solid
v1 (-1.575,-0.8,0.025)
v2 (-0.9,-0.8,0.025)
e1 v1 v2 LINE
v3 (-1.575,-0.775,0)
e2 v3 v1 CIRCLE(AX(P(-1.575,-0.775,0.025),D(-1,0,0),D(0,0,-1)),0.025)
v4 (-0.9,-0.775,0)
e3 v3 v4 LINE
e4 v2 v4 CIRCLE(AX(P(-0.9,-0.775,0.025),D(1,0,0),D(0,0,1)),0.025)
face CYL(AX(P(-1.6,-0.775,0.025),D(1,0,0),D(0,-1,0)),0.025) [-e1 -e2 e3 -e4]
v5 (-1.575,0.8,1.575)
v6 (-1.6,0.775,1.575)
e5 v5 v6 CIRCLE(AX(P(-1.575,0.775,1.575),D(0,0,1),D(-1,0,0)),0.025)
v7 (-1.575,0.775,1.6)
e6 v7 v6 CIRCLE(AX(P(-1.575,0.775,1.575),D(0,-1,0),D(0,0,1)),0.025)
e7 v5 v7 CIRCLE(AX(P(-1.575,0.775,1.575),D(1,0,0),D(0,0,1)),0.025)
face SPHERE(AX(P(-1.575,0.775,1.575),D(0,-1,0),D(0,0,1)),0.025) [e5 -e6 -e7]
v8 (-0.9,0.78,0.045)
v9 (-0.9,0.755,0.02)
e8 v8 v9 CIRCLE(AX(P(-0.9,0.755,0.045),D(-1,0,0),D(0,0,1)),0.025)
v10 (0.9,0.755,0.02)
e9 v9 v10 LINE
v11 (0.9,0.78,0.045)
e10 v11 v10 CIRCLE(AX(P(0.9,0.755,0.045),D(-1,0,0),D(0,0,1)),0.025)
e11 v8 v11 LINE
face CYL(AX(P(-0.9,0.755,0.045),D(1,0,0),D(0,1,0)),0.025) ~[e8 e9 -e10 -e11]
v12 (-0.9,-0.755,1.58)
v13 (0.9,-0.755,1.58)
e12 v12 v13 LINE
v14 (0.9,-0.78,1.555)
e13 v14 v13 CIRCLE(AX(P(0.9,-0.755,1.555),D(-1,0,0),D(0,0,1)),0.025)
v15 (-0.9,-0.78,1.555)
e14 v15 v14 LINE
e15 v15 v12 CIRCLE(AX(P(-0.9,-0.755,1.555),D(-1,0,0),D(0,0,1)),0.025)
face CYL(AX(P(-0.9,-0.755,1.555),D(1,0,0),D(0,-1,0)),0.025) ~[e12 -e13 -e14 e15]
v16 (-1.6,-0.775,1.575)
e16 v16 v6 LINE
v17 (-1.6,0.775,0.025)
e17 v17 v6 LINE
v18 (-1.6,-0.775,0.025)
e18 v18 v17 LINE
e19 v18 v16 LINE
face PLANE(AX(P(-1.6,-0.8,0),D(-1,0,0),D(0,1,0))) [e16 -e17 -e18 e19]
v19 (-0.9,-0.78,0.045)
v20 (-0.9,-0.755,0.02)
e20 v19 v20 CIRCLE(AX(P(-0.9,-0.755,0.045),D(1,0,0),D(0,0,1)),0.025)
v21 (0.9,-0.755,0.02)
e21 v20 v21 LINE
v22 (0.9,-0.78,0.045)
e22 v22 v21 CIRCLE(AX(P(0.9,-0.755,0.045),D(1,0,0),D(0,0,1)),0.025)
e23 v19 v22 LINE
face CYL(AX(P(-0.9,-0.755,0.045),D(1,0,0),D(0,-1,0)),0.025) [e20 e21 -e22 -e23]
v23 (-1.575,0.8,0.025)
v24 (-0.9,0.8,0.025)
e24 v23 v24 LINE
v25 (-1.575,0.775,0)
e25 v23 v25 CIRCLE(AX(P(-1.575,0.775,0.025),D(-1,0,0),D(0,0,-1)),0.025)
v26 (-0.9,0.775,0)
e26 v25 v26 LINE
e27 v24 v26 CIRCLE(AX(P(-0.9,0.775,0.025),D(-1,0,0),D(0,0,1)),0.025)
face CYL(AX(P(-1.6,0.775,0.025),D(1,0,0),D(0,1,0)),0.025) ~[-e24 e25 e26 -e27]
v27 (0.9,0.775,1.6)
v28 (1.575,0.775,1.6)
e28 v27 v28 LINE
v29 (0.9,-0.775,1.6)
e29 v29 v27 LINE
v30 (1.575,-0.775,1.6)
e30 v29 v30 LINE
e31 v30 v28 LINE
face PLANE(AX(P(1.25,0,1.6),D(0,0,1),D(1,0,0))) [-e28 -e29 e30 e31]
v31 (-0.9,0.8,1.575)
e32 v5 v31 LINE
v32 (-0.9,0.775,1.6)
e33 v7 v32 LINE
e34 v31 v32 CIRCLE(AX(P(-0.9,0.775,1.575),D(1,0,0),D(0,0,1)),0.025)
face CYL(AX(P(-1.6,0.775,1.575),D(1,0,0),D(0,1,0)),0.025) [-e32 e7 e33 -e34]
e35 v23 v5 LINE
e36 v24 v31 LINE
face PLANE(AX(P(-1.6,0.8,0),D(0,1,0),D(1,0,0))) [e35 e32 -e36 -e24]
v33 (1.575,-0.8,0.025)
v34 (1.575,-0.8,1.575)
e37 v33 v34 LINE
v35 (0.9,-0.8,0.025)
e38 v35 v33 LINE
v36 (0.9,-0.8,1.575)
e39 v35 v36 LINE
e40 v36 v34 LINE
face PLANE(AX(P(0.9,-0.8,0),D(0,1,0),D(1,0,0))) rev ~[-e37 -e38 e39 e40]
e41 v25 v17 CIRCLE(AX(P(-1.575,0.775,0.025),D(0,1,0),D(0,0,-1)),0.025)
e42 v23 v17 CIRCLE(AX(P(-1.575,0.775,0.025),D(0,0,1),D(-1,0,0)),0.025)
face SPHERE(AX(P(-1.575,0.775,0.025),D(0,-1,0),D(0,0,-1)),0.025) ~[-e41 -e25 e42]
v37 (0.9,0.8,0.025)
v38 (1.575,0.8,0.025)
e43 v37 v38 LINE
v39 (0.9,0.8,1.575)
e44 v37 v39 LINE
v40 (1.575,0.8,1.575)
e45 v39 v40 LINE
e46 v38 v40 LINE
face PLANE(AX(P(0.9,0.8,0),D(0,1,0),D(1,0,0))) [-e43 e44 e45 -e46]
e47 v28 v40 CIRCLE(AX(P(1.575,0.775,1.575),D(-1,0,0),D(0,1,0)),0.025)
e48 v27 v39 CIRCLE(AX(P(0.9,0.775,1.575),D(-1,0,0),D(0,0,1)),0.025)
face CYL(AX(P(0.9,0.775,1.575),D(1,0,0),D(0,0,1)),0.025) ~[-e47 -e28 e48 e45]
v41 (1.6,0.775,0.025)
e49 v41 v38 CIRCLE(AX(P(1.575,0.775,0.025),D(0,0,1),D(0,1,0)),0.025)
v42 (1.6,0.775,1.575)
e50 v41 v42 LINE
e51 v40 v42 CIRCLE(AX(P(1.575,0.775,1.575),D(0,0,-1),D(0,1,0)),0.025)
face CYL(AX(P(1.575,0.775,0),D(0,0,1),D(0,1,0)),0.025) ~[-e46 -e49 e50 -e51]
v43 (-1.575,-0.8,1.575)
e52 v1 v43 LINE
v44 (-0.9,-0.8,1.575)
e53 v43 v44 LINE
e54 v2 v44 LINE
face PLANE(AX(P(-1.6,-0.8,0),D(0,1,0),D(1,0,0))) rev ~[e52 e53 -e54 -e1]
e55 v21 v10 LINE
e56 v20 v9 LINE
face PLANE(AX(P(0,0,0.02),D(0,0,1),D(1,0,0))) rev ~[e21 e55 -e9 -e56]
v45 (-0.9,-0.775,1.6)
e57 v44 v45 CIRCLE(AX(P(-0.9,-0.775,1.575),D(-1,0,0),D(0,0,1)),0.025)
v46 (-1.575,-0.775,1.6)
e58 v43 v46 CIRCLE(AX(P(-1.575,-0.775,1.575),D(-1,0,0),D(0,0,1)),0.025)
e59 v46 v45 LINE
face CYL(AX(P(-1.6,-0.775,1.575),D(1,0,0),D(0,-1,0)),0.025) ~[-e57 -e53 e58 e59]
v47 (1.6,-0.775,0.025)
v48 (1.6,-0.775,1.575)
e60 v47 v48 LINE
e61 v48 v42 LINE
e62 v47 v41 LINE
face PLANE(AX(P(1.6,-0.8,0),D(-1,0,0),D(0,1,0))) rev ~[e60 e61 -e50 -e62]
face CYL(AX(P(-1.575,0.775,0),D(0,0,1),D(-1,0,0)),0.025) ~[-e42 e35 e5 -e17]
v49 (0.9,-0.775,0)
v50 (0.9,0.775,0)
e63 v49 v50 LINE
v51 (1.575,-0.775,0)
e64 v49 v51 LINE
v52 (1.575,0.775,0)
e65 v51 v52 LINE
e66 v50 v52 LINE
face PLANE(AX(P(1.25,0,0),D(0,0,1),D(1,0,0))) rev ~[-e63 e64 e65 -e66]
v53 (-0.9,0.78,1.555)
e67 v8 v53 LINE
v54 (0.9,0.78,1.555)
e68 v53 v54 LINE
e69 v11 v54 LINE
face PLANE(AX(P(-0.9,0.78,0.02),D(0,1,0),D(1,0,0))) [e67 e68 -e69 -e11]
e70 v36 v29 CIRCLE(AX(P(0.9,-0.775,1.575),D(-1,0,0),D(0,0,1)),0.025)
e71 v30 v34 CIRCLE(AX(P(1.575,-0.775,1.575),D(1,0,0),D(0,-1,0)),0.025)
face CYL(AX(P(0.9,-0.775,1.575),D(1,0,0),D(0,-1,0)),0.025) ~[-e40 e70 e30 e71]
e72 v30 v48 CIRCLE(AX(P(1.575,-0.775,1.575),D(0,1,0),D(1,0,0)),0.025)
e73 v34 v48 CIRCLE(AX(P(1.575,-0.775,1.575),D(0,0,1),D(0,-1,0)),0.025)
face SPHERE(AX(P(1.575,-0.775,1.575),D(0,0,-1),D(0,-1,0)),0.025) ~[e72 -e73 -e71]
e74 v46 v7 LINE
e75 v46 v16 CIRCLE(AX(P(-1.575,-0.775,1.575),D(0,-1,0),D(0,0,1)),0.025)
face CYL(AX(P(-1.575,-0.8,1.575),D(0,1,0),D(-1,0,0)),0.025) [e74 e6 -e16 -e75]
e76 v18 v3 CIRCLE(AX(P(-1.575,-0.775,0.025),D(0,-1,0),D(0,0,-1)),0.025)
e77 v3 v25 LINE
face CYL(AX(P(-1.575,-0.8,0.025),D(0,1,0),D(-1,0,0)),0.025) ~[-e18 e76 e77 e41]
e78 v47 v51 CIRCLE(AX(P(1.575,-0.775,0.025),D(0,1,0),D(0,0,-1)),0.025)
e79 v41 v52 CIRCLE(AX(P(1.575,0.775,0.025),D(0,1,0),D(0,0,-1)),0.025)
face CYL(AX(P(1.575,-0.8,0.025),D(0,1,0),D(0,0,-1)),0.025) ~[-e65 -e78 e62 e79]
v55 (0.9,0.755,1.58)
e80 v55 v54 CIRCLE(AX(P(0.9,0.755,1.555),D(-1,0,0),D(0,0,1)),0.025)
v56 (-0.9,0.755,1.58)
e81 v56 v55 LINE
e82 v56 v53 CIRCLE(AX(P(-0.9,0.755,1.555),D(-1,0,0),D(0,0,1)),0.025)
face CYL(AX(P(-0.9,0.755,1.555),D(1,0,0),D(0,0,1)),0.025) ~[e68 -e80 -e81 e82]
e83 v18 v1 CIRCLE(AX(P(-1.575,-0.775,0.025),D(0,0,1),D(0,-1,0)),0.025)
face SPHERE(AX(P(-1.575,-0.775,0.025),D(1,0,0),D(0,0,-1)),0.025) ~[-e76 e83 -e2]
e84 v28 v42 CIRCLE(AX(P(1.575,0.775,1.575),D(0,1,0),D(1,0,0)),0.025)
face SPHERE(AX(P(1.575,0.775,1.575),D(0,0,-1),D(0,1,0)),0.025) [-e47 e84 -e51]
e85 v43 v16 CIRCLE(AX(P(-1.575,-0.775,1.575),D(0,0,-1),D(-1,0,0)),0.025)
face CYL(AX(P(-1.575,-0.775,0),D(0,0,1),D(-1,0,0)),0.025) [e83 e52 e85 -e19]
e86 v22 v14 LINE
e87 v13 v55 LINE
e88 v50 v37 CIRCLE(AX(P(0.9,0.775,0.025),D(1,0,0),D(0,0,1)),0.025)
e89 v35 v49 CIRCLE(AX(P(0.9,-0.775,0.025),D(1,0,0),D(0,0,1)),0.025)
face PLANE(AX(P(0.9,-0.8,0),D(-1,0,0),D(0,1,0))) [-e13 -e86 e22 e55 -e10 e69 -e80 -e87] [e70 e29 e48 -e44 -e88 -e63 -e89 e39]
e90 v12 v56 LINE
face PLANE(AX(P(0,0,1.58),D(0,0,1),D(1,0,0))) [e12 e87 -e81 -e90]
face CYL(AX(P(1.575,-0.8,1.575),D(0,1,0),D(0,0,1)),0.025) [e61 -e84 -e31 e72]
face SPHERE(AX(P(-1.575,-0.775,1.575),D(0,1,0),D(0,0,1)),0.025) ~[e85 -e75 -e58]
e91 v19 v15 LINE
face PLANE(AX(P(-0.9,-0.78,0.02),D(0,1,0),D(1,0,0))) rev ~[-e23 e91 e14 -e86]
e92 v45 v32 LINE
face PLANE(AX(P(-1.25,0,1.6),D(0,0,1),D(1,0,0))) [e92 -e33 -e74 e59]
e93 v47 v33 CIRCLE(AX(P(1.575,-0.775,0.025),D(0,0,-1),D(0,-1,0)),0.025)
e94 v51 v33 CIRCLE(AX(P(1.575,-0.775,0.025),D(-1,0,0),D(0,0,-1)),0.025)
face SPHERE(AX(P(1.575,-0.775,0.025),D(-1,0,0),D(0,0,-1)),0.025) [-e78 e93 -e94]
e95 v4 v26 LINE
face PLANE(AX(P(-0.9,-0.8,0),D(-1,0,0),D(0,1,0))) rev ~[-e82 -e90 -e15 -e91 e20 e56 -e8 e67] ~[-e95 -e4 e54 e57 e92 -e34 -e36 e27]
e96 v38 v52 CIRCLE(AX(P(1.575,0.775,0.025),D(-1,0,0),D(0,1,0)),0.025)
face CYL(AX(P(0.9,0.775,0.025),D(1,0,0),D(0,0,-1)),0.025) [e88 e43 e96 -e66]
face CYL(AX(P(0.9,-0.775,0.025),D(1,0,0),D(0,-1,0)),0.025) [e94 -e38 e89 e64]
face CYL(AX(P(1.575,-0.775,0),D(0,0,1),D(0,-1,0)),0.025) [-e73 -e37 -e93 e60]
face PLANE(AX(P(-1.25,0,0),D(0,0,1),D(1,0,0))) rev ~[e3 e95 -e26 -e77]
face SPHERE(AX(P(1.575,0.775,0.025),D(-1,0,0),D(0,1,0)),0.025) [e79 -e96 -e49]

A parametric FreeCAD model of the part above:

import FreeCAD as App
import Part
import Sketcher
from FreeCAD import Vector
Q = App.Units.Quantity


def edges_at(feature, points):
    """Names of the edges that pass closest to the given points."""
    edges = feature.Shape.Edges
    near = lambda p: min(range(len(edges)), key=lambda i: edges[i].distToShape(Part.Vertex(*p))[0])
    return sorted({f"Edge{near(p) + 1}" for p in points})

doc = App.newDocument("Part")
body = doc.addObject("PartDesign::Body", "Body")

# Sketch on XY plane
sketch1 = doc.addObject("Sketcher::SketchObject", "Sketch")
body.addObject(sketch1)
sketch1.AttachmentSupport = (doc.XY_Plane, [""])
sketch1.MapMode = "FlatFace"
sketch1.addGeometry([
    Part.LineSegment(Vector(0.9, 0.8, 0), Vector(0.9, -0.8, 0)),
    Part.LineSegment(Vector(0.9, -0.8, 0), Vector(1.6, -0.8, 0)),
    Part.LineSegment(Vector(1.6, -0.8, 0), Vector(1.6, 0.8, 0)),
    Part.LineSegment(Vector(1.6, 0.8, 0), Vector(0.9, 0.8, 0)),
], False)
sketch1.addConstraint([
    Sketcher.Constraint("Coincident", 0, 2, 1, 1),
    Sketcher.Constraint("Coincident", 1, 2, 2, 1),
    Sketcher.Constraint("Coincident", 2, 2, 3, 1),
    Sketcher.Constraint("Coincident", 3, 2, 0, 1),
    Sketcher.Constraint("Vertical", 0),
    Sketcher.Constraint("Horizontal", 1),
    Sketcher.Constraint("Vertical", 2),
    Sketcher.Constraint("Horizontal", 3),
    Sketcher.Constraint("DistanceX", 1, 1, 1, 2, Q("0.7 mm")),
    Sketcher.Constraint("DistanceY", 0, 2, 0, 1, Q("1.6 mm")),
    Sketcher.Constraint("DistanceX", -1, 1, 0, 2, Q("0.9 mm")),
    Sketcher.Constraint("DistanceY", 0, 2, -1, 1, Q("0.8 mm")),
])
pad1 = doc.addObject("PartDesign::Pad", "Pad")
body.addObject(pad1)
pad1.Profile = sketch1
pad1.Length = 1.6
body2 = doc.addObject("PartDesign::Body", "Body001")

# Sketch on XY plane
sketch2 = doc.addObject("Sketcher::SketchObject", "Sketch001")
body2.addObject(sketch2)
sketch2.AttachmentSupport = (doc.getObject("XY_Plane001"), [""])
sketch2.MapMode = "FlatFace"
sketch2.addGeometry([
    Part.LineSegment(Vector(-1.6, 0.8, 0), Vector(-1.6, -0.8, 0)),
    Part.LineSegment(Vector(-1.6, -0.8, 0), Vector(-0.9, -0.8, 0)),
    Part.LineSegment(Vector(-0.9, -0.8, 0), Vector(-0.9, 0.8, 0)),
    Part.LineSegment(Vector(-0.9, 0.8, 0), Vector(-1.6, 0.8, 0)),
], False)
sketch2.addConstraint([
    Sketcher.Constraint("Coincident", 0, 2, 1, 1),
    Sketcher.Constraint("Coincident", 1, 2, 2, 1),
    Sketcher.Constraint("Coincident", 2, 2, 3, 1),
    Sketcher.Constraint("Coincident", 3, 2, 0, 1),
    Sketcher.Constraint("Vertical", 0),
    Sketcher.Constraint("Horizontal", 1),
    Sketcher.Constraint("Vertical", 2),
    Sketcher.Constraint("Horizontal", 3),
    Sketcher.Constraint("DistanceX", 1, 1, 1, 2, Q("0.7 mm")),
    Sketcher.Constraint("DistanceY", 0, 2, 0, 1, Q("1.6 mm")),
    Sketcher.Constraint("DistanceX", 0, 2, -1, 1, Q("1.6 mm")),
    Sketcher.Constraint("DistanceY", 0, 2, -1, 1, Q("0.8 mm")),
])
pad2 = doc.addObject("PartDesign::Pad", "Pad001")
body2.addObject(pad2)
pad2.Profile = sketch2
pad2.Length = 1.6
body.AllowCompound = True
doc.recompute()

boolean = doc.addObject("PartDesign::Boolean", "Boolean")
body.addObject(boolean)
boolean.Type = "Fuse"
boolean.addObjects([body2])

# Sketch on XY plane
sketch3 = doc.addObject("Sketcher::SketchObject", "Sketch002")
body.addObject(sketch3)
sketch3.AttachmentSupport = (doc.XY_Plane, [""])
sketch3.MapMode = "FlatFace"
sketch3.AttachmentOffset = App.Placement(Vector(0, 0, 0.02), App.Rotation())
sketch3.addGeometry([
    Part.LineSegment(Vector(-0.9, 0.8, 0), Vector(-0.9, -0.8, 0)),
    Part.LineSegment(Vector(-0.9, -0.8, 0), Vector(0.9, -0.8, 0)),
    Part.LineSegment(Vector(0.9, -0.8, 0), Vector(0.9, 0.8, 0)),
    Part.LineSegment(Vector(0.9, 0.8, 0), Vector(-0.9, 0.8, 0)),
], False)
sketch3.addConstraint([
    Sketcher.Constraint("Coincident", 0, 2, 1, 1),
    Sketcher.Constraint("Coincident", 1, 2, 2, 1),
    Sketcher.Constraint("Coincident", 2, 2, 3, 1),
    Sketcher.Constraint("Coincident", 3, 2, 0, 1),
    Sketcher.Constraint("Vertical", 0),
    Sketcher.Constraint("Horizontal", 1),
    Sketcher.Constraint("Vertical", 2),
    Sketcher.Constraint("Horizontal", 3),
    Sketcher.Constraint("Symmetric", 0, 2, 2, 2, -1, 1),
    Sketcher.Constraint("DistanceX", 1, 1, 1, 2, Q("1.8 mm")),
    Sketcher.Constraint("DistanceY", 0, 2, 0, 1, Q("1.56 mm")),
])
pad3 = doc.addObject("PartDesign::Pad", "Pad002")
body.addObject(pad3)
pad3.Profile = sketch3
pad3.Length = 1.56
doc.recompute()

fillet = doc.addObject("PartDesign::Fillet", "Fillet")
body.addObject(fillet)
fillet.Base = (pad3, edges_at(pad3, [
    (-1.6, 0, 1.6),
    (-1.25, -0.8, 1.6),
    (1.25, 0.8, 0),
    (1.6, 0.8, 0.8),
    (1.25, -0.8, 0),
    (1.6, 0, 0),
    (1.6, -0.8, 0.8),
    (1.25, 0.8, 1.6),
    (1.25, -0.8, 1.6),
    (1.6, 0, 1.6),
    (-1.25, -0.8, 0),
    (-1.6, 0, 0),
    (-1.25, 0.8, 0),
    (-1.25, 0.8, 1.6),
    (-1.6, -0.8, 0.8),
    (-1.6, 0.8, 0.8),
]))
fillet.Radius = 0.025
doc.recompute()

fillet2 = doc.addObject("PartDesign::Fillet", "Fillet001")
body.addObject(fillet2)
fillet2.Base = (fillet, edges_at(fillet, [
    (0, -0.78, 0.02),
    (0, 0.78, 0.02),
    (0, 0.78, 1.58),
    (0, -0.78, 1.58),
]))
fillet2.Radius = 0.025

doc.recompute()
